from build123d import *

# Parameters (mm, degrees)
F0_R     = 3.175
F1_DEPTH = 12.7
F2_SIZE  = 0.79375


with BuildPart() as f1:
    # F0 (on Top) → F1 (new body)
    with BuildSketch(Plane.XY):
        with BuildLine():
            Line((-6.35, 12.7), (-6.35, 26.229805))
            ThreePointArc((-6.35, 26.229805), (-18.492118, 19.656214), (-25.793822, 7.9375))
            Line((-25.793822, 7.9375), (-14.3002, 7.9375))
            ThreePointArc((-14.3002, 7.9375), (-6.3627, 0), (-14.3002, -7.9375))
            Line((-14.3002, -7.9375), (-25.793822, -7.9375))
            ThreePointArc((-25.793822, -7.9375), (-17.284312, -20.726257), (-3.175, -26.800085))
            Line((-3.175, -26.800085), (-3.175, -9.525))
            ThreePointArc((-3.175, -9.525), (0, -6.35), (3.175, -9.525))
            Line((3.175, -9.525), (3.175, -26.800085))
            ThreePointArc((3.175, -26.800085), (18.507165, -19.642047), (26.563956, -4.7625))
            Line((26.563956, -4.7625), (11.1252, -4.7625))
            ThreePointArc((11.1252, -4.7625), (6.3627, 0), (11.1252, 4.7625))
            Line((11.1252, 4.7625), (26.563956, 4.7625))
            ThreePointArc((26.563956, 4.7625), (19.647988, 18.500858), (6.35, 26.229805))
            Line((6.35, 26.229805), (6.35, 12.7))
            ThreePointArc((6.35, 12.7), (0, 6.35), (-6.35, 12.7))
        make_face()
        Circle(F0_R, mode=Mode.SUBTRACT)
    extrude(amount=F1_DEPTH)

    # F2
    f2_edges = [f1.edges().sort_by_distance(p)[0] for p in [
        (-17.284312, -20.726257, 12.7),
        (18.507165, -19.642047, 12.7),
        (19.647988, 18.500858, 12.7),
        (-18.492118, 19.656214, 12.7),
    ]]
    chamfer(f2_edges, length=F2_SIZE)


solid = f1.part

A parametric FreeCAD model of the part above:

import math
import FreeCAD as App
import Part
import Sketcher

V = App.Vector
Q = App.Units.Quantity


def edges_at(feature, points):
    """Names of the edges that pass closest to the given points."""
    edges = feature.Shape.Edges
    near = lambda p: min(range(len(edges)), key=lambda i: edges[i].distToShape(Part.Vertex(*p))[0])
    return sorted({f"Edge{near(p) + 1}" for p in points})

doc = App.newDocument("Part")
params = doc.addObject("Spreadsheet::Sheet", "Params")
for row, (alias, value) in enumerate([
    ("sketch1_diameter", "0.25 in"),
    ("sketch1_radius", "0.25 in"),
    ("sketch1_radius2", "1.0624999 in"),
    ("sketch1_radius3", "0.3125 in"),
    ("sketch1_radius4", "0.1875 in"),
    ("pad1_length", "0.5 in"),
    ("chamfer_size", "0.03125 in"),
], start=1):
    params.set(f"A{row}", alias)
    params.set(f"B{row}", "=" + value)
    params.setAlias(f"B{row}", alias)

body = doc.addObject("PartDesign::Body", "Body")

# Sketch on XY plane
sketch1 = body.newObject("Sketcher::SketchObject", "Sketch")
sketch1.AttachmentSupport = (doc.getObject("XY_Plane"), [""])
sketch1.MapMode = "FlatFace"
sketch1.addGeometry(Part.LineSegment(V(-6.3, 12.7, 0), V(-6.3, 26.2, 0)), False)
sketch1.addGeometry(Part.ArcOfCircle(Part.Circle(V(0, 0, 0), V(0, 0, 1), 27), math.radians(104), math.radians(163)), False)
sketch1.addGeometry(Part.LineSegment(V(-25.8, 7.9, 0), V(-14.3, 7.9, 0)), False)
sketch1.addGeometry(Part.ArcOfCircle(Part.Circle(V(-14.3, 0, 0), V(0, 0, 1), 7.9), math.radians(-90), math.radians(90)), False)
sketch1.addGeometry(Part.LineSegment(V(-14.3, -7.9, 0), V(-25.8, -7.9, 0)), False)
sketch1.addGeometry(Part.ArcOfCircle(Part.Circle(V(0, 0, 0), V(0, 0, 1), 27), math.radians(-163), math.radians(-97)), False)
sketch1.addGeometry(Part.LineSegment(V(-3.2, -26.8, 0), V(-3.2, -9.5, 0)), False)
sketch1.addGeometry(Part.ArcOfCircle(Part.Circle(V(0, -9.5, 0), V(0, 0, 1), 3.2), math.radians(0), math.radians(180)), False)
sketch1.addGeometry(Part.LineSegment(V(3.2, -9.5, 0), V(3.2, -26.8, 0)), False)
sketch1.addGeometry(Part.ArcOfCircle(Part.Circle(V(0, 0, 0), V(0, 0, 1), 27), math.radians(-83), math.radians(-10)), False)
sketch1.addGeometry(Part.LineSegment(V(26.6, -4.8, 0), V(11.1, -4.8, 0)), False)
sketch1.addGeometry(Part.ArcOfCircle(Part.Circle(V(11.1, 0, 0), V(0, 0, 1), 4.8), math.radians(90), math.radians(270)), False)
sketch1.addGeometry(Part.LineSegment(V(11.1, 4.8, 0), V(26.6, 4.8, 0)), False)
sketch1.addGeometry(Part.ArcOfCircle(Part.Circle(V(0, 0, 0), V(0, 0, 1), 27), math.radians(10), math.radians(76)), False)
sketch1.addGeometry(Part.LineSegment(V(6.3, 26.2, 0), V(6.3, 12.7, 0)), False)
sketch1.addGeometry(Part.ArcOfCircle(Part.Circle(V(0, 12.7, 0), V(0, 0, 1), 6.3), math.radians(180), math.radians(360)), False)
sketch1.addGeometry(Part.Circle(V(0, 0, 0), V(0, 0, 1), 3.2), False)
sketch1.addConstraint(Sketcher.Constraint("Coincident", 0, 2, 1, 1))
sketch1.addConstraint(Sketcher.Constraint("Coincident", 1, 2, 2, 1))
sketch1.addConstraint(Sketcher.Constraint("Tangent", 2, 2, 3, 2))
sketch1.addConstraint(Sketcher.Constraint("Tangent", 3, 1, 4, 1))
sketch1.addConstraint(Sketcher.Constraint("Coincident", 4, 2, 5, 1))
sketch1.addConstraint(Sketcher.Constraint("Coincident", 5, 2, 6, 1))
sketch1.addConstraint(Sketcher.Constraint("Tangent", 6, 2, 7, 2))
sketch1.addConstraint(Sketcher.Constraint("Tangent", 7, 1, 8, 1))
sketch1.addConstraint(Sketcher.Constraint("Coincident", 8, 2, 9, 1))
sketch1.addConstraint(Sketcher.Constraint("Coincident", 9, 2, 10, 1))
sketch1.addConstraint(Sketcher.Constraint("Tangent", 10, 2, 11, 2))
sketch1.addConstraint(Sketcher.Constraint("Tangent", 11, 1, 12, 1))
sketch1.addConstraint(Sketcher.Constraint("Coincident", 12, 2, 13, 1))
sketch1.addConstraint(Sketcher.Constraint("Coincident", 13, 2, 14, 1))
sketch1.addConstraint(Sketcher.Constraint("Tangent", 14, 2, 15, 2))
sketch1.addConstraint(Sketcher.Constraint("Tangent", 15, 1, 0, 1))
sketch1.addConstraint(Sketcher.Constraint("Vertical", 0))
sketch1.addConstraint(Sketcher.Constraint("Horizontal", 2))
sketch1.addConstraint(Sketcher.Constraint("Horizontal", 4))
sketch1.addConstraint(Sketcher.Constraint("Vertical", 6))
sketch1.addConstraint(Sketcher.Constraint("Vertical", 8))
sketch1.addConstraint(Sketcher.Constraint("Horizontal", 10))
sketch1.addConstraint(Sketcher.Constraint("Horizontal", 12))
sketch1.addConstraint(Sketcher.Constraint("Vertical", 14))
sketch1.addConstraint(Sketcher.Constraint("Coincident", 1, 3, -1, 1))
sketch1.addConstraint(Sketcher.Constraint("Coincident", 5, 3, -1, 1))
sketch1.addConstraint(Sketcher.Constraint("Coincident", 9, 3, -1, 1))
sketch1.addConstraint(Sketcher.Constraint("Coincident", 13, 3, -1, 1))
sketch1.addConstraint(Sketcher.Constraint("Coincident", 16, 3, -1, 1))
sketch1.addConstraint(Sketcher.Constraint("Equal", 1, 5))
sketch1.addConstraint(Sketcher.Constraint("Equal", 5, 9))
sketch1.addConstraint(Sketcher.Constraint("Equal", 9, 13))
sketch1.addConstraint(Sketcher.Constraint("Equal", 7, 16))
sketch1.addConstraint(Sketcher.Constraint("PointOnObject", 3, 3, -1))
sketch1.addConstraint(Sketcher.Constraint("PointOnObject", 7, 3, -2))
sketch1.addConstraint(Sketcher.Constraint("PointOnObject", 11, 3, -1))
sketch1.addConstraint(Sketcher.Constraint("PointOnObject", 15, 3, -2))
sketch1.addConstraint(Sketcher.Constraint("Diameter", 16, Q("0.25 in")))
sketch1.addConstraint(Sketcher.Constraint("Radius", 15, Q("0.25 in")))
sketch1.addConstraint(Sketcher.Constraint("Radius", 1, Q("1.0624999 in")))
sketch1.addConstraint(Sketcher.Constraint("Radius", 3, Q("0.3125 in")))
sketch1.addConstraint(Sketcher.Constraint("Radius", 11, Q("0.1875 in")))
sketch1.addConstraint(Sketcher.Constraint("DistanceY", -1, 1, 15, 3, Q("0.5 in")))
sketch1.addConstraint(Sketcher.Constraint("DistanceX", 3, 3, -1, 1, Q("0.563 in")))
sketch1.addConstraint(Sketcher.Constraint("DistanceY", 7, 3, -1, 1, Q("0.375 in")))
sketch1.addConstraint(Sketcher.Constraint("DistanceX", -1, 1, 11, 3, Q("0.438 in")))
sketch1.setExpression("Constraints[37]", "Params.sketch1_diameter")
sketch1.setExpression("Constraints[38]", "Params.sketch1_radius")
sketch1.setExpression("Constraints[39]", "Params.sketch1_radius2")
sketch1.setExpression("Constraints[40]", "Params.sketch1_radius3")
sketch1.setExpression("Constraints[41]", "Params.sketch1_radius4")
pad1 = body.newObject("PartDesign::Pad", "Pad")
pad1.Profile = sketch1
pad1.setExpression("Length", "Params.pad1_length")
doc.recompute()

chamfer = body.newObject("PartDesign::Chamfer", "Chamfer")
chamfer.Base = (pad1, edges_at(pad1, [
    (-17.284, -20.726, 12.7),
    (18.507, -19.642, 12.7),
    (19.648, 18.501, 12.7),
    (-18.492, 19.656, 12.7),
]))
chamfer.setExpression("Size", "Params.chamfer_size")

doc.recompute()
